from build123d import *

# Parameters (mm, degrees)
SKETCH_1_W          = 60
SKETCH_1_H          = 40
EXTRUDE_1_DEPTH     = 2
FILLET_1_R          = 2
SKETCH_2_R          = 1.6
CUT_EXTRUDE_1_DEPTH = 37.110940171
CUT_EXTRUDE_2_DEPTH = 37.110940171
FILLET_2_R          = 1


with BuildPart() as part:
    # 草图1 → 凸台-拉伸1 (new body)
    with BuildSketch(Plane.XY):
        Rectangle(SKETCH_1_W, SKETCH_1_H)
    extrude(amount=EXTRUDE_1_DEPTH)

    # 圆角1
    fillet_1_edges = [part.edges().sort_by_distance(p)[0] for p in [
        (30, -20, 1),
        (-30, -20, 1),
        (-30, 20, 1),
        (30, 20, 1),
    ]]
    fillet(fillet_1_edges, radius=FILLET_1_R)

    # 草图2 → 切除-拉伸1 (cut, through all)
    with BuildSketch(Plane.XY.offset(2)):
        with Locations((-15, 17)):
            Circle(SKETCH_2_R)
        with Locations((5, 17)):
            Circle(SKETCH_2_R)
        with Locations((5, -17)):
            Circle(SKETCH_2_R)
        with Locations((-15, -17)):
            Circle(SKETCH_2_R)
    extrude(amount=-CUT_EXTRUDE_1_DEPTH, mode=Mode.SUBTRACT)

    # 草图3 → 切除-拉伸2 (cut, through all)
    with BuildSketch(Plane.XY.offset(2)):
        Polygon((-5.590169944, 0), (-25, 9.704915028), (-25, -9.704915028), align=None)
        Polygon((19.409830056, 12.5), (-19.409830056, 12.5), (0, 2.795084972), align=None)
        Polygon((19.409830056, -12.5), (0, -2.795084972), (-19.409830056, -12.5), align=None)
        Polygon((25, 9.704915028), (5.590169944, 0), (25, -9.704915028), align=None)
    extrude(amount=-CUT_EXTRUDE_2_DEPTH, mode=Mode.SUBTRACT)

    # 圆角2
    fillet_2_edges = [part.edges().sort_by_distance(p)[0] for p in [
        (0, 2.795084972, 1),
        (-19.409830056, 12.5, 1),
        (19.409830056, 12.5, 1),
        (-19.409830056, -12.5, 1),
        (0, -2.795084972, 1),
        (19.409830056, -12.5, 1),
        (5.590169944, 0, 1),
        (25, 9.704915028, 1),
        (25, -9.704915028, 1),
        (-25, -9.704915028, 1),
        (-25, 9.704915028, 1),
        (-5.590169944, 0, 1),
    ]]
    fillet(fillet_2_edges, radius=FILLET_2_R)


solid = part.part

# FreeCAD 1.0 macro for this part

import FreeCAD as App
import Part
import Sketcher
Q = App.Units.Quantity


def edges_at(feature, points):
    """Names of the edges that pass closest to the given points."""
    edges = feature.Shape.Edges
    near = lambda p: min(range(len(edges)), key=lambda i: edges[i].distToShape(Part.Vertex(*p))[0])
    return sorted({f"Edge{near(p) + 1}" for p in points})


def add_polygon(sketch, points):
    """Adds a closed chain of lines whose ends are joined by coincident constraints."""
    first, n = sketch.GeometryCount, len(points)
    for a, b in zip(points, points[1:] + points[:1]):
        sketch.addGeometry(Part.LineSegment(App.Vector(*a, 0), App.Vector(*b, 0)), False)
    for i in range(n):
        sketch.addConstraint(Sketcher.Constraint("Coincident", first + i, 2, first + (i + 1) % n, 1))

doc = App.newDocument("Part")
body = doc.addObject("PartDesign::Body", "Body")

# Sketch on XY plane
sketch1 = body.newObject("Sketcher::SketchObject", "Sketch")
sketch1.AttachmentSupport = (doc.getObject("XY_Plane"), [""])
sketch1.MapMode = "FlatFace"
add_polygon(sketch1, [(-30, 20), (-30, -20), (30, -20), (30, 20)])  # lines 0-3
sketch1.addConstraint([
    Sketcher.Constraint("Vertical", 0),
    Sketcher.Constraint("Horizontal", 1),
    Sketcher.Constraint("Vertical", 2),
    Sketcher.Constraint("Horizontal", 3),
    Sketcher.Constraint("Symmetric", 0, 2, 2, 2, -1, 1),
    Sketcher.Constraint("DistanceX", 1, 1, 1, 2, Q("60 mm")),
    Sketcher.Constraint("DistanceY", 0, 2, 0, 1, Q("40 mm")),
])
pad1 = body.newObject("PartDesign::Pad", "Pad")
pad1.Profile = sketch1
pad1.Length = 2
doc.recompute()

fillet = body.newObject("PartDesign::Fillet", "Fillet")
fillet.Base = (pad1, edges_at(pad1, [
    (30, -20, 1),
    (-30, -20, 1),
    (-30, 20, 1),
    (30, 20, 1),
]))
fillet.Radius = 2

# Sketch on XY plane
sketch2 = body.newObject("Sketcher::SketchObject", "Sketch001")
sketch2.AttachmentSupport = (doc.getObject("XY_Plane"), [""])
sketch2.MapMode = "FlatFace"
sketch2.AttachmentOffset = App.Placement(App.Vector(0, 0, 2), App.Rotation())
sketch2.addGeometry([
    Part.Circle(App.Vector(-15, 17, 0), App.Vector(0, 0, 1), 1.6),
    Part.Circle(App.Vector(5, 17, 0), App.Vector(0, 0, 1), 1.6),
    Part.Circle(App.Vector(5, -17, 0), App.Vector(0, 0, 1), 1.6),
    Part.Circle(App.Vector(-15, -17, 0), App.Vector(0, 0, 1), 1.6),
], False)
sketch2.addConstraint([
    Sketcher.Constraint("Equal", 0, 1),
    Sketcher.Constraint("Equal", 1, 2),
    Sketcher.Constraint("Equal", 2, 3),
    Sketcher.Constraint("Symmetric", 1, 3, 2, 3, -1),
    Sketcher.Constraint("Symmetric", 0, 3, 3, 3, -1),
    Sketcher.Constraint("Horizontal", 0, 3, 1, 3),
    Sketcher.Constraint("Diameter", 0, Q("3.2 mm")),
    Sketcher.Constraint("DistanceX", 0, 3, -1, 1, Q("15 mm")),
    Sketcher.Constraint("DistanceY", -1, 1, 0, 3, Q("17 mm")),
    Sketcher.Constraint("DistanceX", -1, 1, 1, 3, Q("5 mm")),
])
pocket1 = body.newObject("PartDesign::Pocket", "Pocket")
pocket1.Profile = sketch2
pocket1.Type = "ThroughAll"

# Sketch on XY plane
sketch3 = body.newObject("Sketcher::SketchObject", "Sketch002")
sketch3.AttachmentSupport = (doc.getObject("XY_Plane"), [""])
sketch3.MapMode = "FlatFace"
sketch3.AttachmentOffset = App.Placement(App.Vector(0, 0, 2), App.Rotation())
add_polygon(sketch3, [(-5.59017, 0), (-25, 9.704915), (-25, -9.704915)])  # lines 0-2
add_polygon(sketch3, [(19.40983, 12.5), (-19.40983, 12.5), (0, 2.795085)])  # lines 3-5
add_polygon(sketch3, [(19.40983, -12.5), (0, -2.795085), (-19.40983, -12.5)])  # lines 6-8
add_polygon(sketch3, [(25, 9.704915), (5.59017, 0), (25, -9.704915)])  # lines 9-11
sketch3.addConstraint([
    Sketcher.Constraint("Vertical", 1),
    Sketcher.Constraint("Horizontal", 3),
    Sketcher.Constraint("Horizontal", 8),
    Sketcher.Constraint("Vertical", 11),
    Sketcher.Constraint("Symmetric", 4, 2, 6, 2, -1, 1),
    Sketcher.Constraint("Symmetric", 5, 2, 7, 2, -1, 1),
    Sketcher.Constraint("Symmetric", 2, 2, 9, 2, -1, 1),
    Sketcher.Constraint("Symmetric", 0, 2, 10, 2, -1, 1),
    Sketcher.Constraint("PointOnObject", 2, 2, -1),
    Sketcher.Constraint("PointOnObject", 4, 2, -2),
    Sketcher.Constraint("Parallel", 0, 4),
    Sketcher.Constraint("Parallel", 2, 5),
    Sketcher.Constraint("Parallel", 4, 6),
    Sketcher.Constraint("Parallel", 7, 9),
    Sketcher.Constraint("Horizontal", 1, 2, 10, 2),
    Sketcher.Constraint("Equal", 2, 4),
    Sketcher.Constraint("DistanceX", 0, 2, -1, 1, Q("25 mm")),
    Sketcher.Constraint("DistanceY", 8, 2, 5, 2, Q("25 mm")),
    Sketcher.Constraint("DistanceX", 3, 2, 3, 1, Q("38.81966 mm")),
    Sketcher.Constraint("DistanceY", 1, 2, 1, 1, Q("19.40983 mm")),
])
pocket2 = body.newObject("PartDesign::Pocket", "Pocket001")
pocket2.Profile = sketch3
pocket2.Type = "ThroughAll"
doc.recompute()

fillet2 = body.newObject("PartDesign::Fillet", "Fillet001")
fillet2.Base = (pocket2, edges_at(pocket2, [
    (0, 2.795, 1),
    (-19.41, 12.5, 1),
    (19.41, 12.5, 1),
    (-19.41, -12.5, 1),
    (0, -2.795, 1),
    (19.41, -12.5, 1),
    (5.59, 0, 1),
    (25, 9.705, 1),
    (25, -9.705, 1),
    (-25, -9.705, 1),
    (-25, 9.705, 1),
    (-5.59, 0, 1),
]))
fillet2.Radius = 1

doc.recompute()
